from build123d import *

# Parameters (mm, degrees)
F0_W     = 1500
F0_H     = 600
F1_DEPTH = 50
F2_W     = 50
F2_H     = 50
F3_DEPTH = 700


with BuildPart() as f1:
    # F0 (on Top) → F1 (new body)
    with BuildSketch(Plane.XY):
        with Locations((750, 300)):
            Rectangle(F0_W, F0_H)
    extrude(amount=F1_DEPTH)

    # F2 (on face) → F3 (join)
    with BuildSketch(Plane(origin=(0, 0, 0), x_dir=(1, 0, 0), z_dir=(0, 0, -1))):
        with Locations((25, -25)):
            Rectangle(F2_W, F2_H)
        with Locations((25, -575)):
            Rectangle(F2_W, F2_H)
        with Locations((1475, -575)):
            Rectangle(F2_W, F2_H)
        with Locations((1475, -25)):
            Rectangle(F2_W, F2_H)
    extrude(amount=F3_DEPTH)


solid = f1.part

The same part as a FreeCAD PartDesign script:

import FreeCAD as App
import Part
import Sketcher
from FreeCAD import Vector
Q = App.Units.Quantity

doc = App.newDocument("Part")
body = doc.addObject("PartDesign::Body", "Body")

# Sketch on XY plane
sketch1 = body.newObject("Sketcher::SketchObject", "Sketch")
sketch1.AttachmentSupport = (doc.getObject("XY_Plane"), [""])
sketch1.MapMode = "FlatFace"
sketch1.addGeometry(Part.LineSegment(Vector(0, 600, 0), Vector(0, 0, 0)), False)
sketch1.addGeometry(Part.LineSegment(Vector(0, 0, 0), Vector(1500, 0, 0)), False)
sketch1.addGeometry(Part.LineSegment(Vector(1500, 0, 0), Vector(1500, 600, 0)), False)
sketch1.addGeometry(Part.LineSegment(Vector(1500, 600, 0), Vector(0, 600, 0)), False)
sketch1.addConstraint(Sketcher.Constraint("Coincident", 0, 2, 1, 1))
sketch1.addConstraint(Sketcher.Constraint("Coincident", 1, 2, 2, 1))
sketch1.addConstraint(Sketcher.Constraint("Coincident", 2, 2, 3, 1))
sketch1.addConstraint(Sketcher.Constraint("Coincident", 3, 2, 0, 1))
sketch1.addConstraint(Sketcher.Constraint("Vertical", 0))
sketch1.addConstraint(Sketcher.Constraint("Horizontal", 1))
sketch1.addConstraint(Sketcher.Constraint("Vertical", 2))
sketch1.addConstraint(Sketcher.Constraint("Horizontal", 3))
sketch1.addConstraint(Sketcher.Constraint("Coincident", 0, 2, -1, 1))
sketch1.addConstraint(Sketcher.Constraint("DistanceX", 1, 1, 1, 2, Q("1500 mm")))
sketch1.addConstraint(Sketcher.Constraint("DistanceY", 0, 2, 0, 1, Q("600 mm")))
pad1 = body.newObject("PartDesign::Pad", "Pad")
pad1.Profile = sketch1
pad1.Length = 50

# Sketch on XY plane
sketch2 = body.newObject("Sketcher::SketchObject", "Sketch001")
sketch2.AttachmentSupport = (doc.getObject("XY_Plane"), [""])
sketch2.MapMode = "FlatFace"
sketch2.addGeometry(Part.LineSegment(Vector(0, 0, 0), Vector(0, 50, 0)), False)
sketch2.addGeometry(Part.LineSegment(Vector(0, 50, 0), Vector(50, 50, 0)), False)
sketch2.addGeometry(Part.LineSegment(Vector(50, 50, 0), Vector(50, 0, 0)), False)
sketch2.addGeometry(Part.LineSegment(Vector(50, 0, 0), Vector(0, 0, 0)), False)
sketch2.addGeometry(Part.LineSegment(Vector(0, 550, 0), Vector(0, 600, 0)), False)
sketch2.addGeometry(Part.LineSegment(Vector(0, 600, 0), Vector(50, 600, 0)), False)
sketch2.addGeometry(Part.LineSegment(Vector(50, 600, 0), Vector(50, 550, 0)), False)
sketch2.addGeometry(Part.LineSegment(Vector(50, 550, 0), Vector(0, 550, 0)), False)
sketch2.addGeometry(Part.LineSegment(Vector(1450, 550, 0), Vector(1450, 600, 0)), False)
sketch2.addGeometry(Part.LineSegment(Vector(1450, 600, 0), Vector(1500, 600, 0)), False)
sketch2.addGeometry(Part.LineSegment(Vector(1500, 600, 0), Vector(1500, 550, 0)), False)
sketch2.addGeometry(Part.LineSegment(Vector(1500, 550, 0), Vector(1450, 550, 0)), False)
sketch2.addGeometry(Part.LineSegment(Vector(1450, 0, 0), Vector(1450, 50, 0)), False)
sketch2.addGeometry(Part.LineSegment(Vector(1450, 50, 0), Vector(1500, 50, 0)), False)
sketch2.addGeometry(Part.LineSegment(Vector(1500, 50, 0), Vector(1500, 0, 0)), False)
sketch2.addGeometry(Part.LineSegment(Vector(1500, 0, 0), Vector(1450, 0, 0)), False)
sketch2.addConstraint(Sketcher.Constraint("Coincident", 0, 2, 1, 1))
sketch2.addConstraint(Sketcher.Constraint("Coincident", 1, 2, 2, 1))
sketch2.addConstraint(Sketcher.Constraint("Coincident", 2, 2, 3, 1))
sketch2.addConstraint(Sketcher.Constraint("Coincident", 3, 2, 0, 1))
sketch2.addConstraint(Sketcher.Constraint("Coincident", 4, 2, 5, 1))
sketch2.addConstraint(Sketcher.Constraint("Coincident", 5, 2, 6, 1))
sketch2.addConstraint(Sketcher.Constraint("Coincident", 6, 2, 7, 1))
sketch2.addConstraint(Sketcher.Constraint("Coincident", 7, 2, 4, 1))
sketch2.addConstraint(Sketcher.Constraint("Coincident", 8, 2, 9, 1))
sketch2.addConstraint(Sketcher.Constraint("Coincident", 9, 2, 10, 1))
sketch2.addConstraint(Sketcher.Constraint("Coincident", 10, 2, 11, 1))
sketch2.addConstraint(Sketcher.Constraint("Coincident", 11, 2, 8, 1))
sketch2.addConstraint(Sketcher.Constraint("Coincident", 12, 2, 13, 1))
sketch2.addConstraint(Sketcher.Constraint("Coincident", 13, 2, 14, 1))
sketch2.addConstraint(Sketcher.Constraint("Coincident", 14, 2, 15, 1))
sketch2.addConstraint(Sketcher.Constraint("Coincident", 15, 2, 12, 1))
sketch2.addConstraint(Sketcher.Constraint("Vertical", 0))
sketch2.addConstraint(Sketcher.Constraint("Horizontal", 1))
sketch2.addConstraint(Sketcher.Constraint("Vertical", 2))
sketch2.addConstraint(Sketcher.Constraint("Horizontal", 3))
sketch2.addConstraint(Sketcher.Constraint("Vertical", 4))
sketch2.addConstraint(Sketcher.Constraint("Horizontal", 5))
sketch2.addConstraint(Sketcher.Constraint("Vertical", 6))
sketch2.addConstraint(Sketcher.Constraint("Horizontal", 7))
sketch2.addConstraint(Sketcher.Constraint("Vertical", 8))
sketch2.addConstraint(Sketcher.Constraint("Horizontal", 9))
sketch2.addConstraint(Sketcher.Constraint("Vertical", 10))
sketch2.addConstraint(Sketcher.Constraint("Horizontal", 11))
sketch2.addConstraint(Sketcher.Constraint("Vertical", 12))
sketch2.addConstraint(Sketcher.Constraint("Horizontal", 13))
sketch2.addConstraint(Sketcher.Constraint("Vertical", 14))
sketch2.addConstraint(Sketcher.Constraint("Horizontal", 15))
sketch2.addConstraint(Sketcher.Constraint("Coincident", 3, 2, -1, 1))
sketch2.addConstraint(Sketcher.Constraint("PointOnObject", 4, 2, -2))
sketch2.addConstraint(Sketcher.Constraint("PointOnObject", 14, 2, -1))
sketch2.addConstraint(Sketcher.Constraint("Horizontal", 5, 2, 8, 2))
sketch2.addConstraint(Sketcher.Constraint("Horizontal", 7, 2, 10, 2))
sketch2.addConstraint(Sketcher.Constraint("Horizontal", 1, 2, 12, 2))
sketch2.addConstraint(Sketcher.Constraint("Vertical", 2, 2, 5, 2))
sketch2.addConstraint(Sketcher.Constraint("Vertical", 11, 2, 12, 2))
sketch2.addConstraint(Sketcher.Constraint("Vertical", 10, 2, 13, 2))
sketch2.addConstraint(Sketcher.Constraint("Equal", 7, 9))
sketch2.addConstraint(Sketcher.Constraint("Equal", 15, 0))
sketch2.addConstraint(Sketcher.Constraint("Equal", 2, 4))
sketch2.addConstraint(Sketcher.Constraint("DistanceX", 1, 1, 1, 2, Q("50 mm")))
sketch2.addConstraint(Sketcher.Constraint("DistanceY", -1, 1, 4, 2, Q("600 mm")))
sketch2.addConstraint(Sketcher.Constraint("DistanceX", -1, 1, 8, 2, Q("1450 mm")))
pad2 = body.newObject("PartDesign::Pad", "Pad001")
pad2.Profile = sketch2
pad2.Length = 700
pad2.Reversed = True

doc.recompute()
